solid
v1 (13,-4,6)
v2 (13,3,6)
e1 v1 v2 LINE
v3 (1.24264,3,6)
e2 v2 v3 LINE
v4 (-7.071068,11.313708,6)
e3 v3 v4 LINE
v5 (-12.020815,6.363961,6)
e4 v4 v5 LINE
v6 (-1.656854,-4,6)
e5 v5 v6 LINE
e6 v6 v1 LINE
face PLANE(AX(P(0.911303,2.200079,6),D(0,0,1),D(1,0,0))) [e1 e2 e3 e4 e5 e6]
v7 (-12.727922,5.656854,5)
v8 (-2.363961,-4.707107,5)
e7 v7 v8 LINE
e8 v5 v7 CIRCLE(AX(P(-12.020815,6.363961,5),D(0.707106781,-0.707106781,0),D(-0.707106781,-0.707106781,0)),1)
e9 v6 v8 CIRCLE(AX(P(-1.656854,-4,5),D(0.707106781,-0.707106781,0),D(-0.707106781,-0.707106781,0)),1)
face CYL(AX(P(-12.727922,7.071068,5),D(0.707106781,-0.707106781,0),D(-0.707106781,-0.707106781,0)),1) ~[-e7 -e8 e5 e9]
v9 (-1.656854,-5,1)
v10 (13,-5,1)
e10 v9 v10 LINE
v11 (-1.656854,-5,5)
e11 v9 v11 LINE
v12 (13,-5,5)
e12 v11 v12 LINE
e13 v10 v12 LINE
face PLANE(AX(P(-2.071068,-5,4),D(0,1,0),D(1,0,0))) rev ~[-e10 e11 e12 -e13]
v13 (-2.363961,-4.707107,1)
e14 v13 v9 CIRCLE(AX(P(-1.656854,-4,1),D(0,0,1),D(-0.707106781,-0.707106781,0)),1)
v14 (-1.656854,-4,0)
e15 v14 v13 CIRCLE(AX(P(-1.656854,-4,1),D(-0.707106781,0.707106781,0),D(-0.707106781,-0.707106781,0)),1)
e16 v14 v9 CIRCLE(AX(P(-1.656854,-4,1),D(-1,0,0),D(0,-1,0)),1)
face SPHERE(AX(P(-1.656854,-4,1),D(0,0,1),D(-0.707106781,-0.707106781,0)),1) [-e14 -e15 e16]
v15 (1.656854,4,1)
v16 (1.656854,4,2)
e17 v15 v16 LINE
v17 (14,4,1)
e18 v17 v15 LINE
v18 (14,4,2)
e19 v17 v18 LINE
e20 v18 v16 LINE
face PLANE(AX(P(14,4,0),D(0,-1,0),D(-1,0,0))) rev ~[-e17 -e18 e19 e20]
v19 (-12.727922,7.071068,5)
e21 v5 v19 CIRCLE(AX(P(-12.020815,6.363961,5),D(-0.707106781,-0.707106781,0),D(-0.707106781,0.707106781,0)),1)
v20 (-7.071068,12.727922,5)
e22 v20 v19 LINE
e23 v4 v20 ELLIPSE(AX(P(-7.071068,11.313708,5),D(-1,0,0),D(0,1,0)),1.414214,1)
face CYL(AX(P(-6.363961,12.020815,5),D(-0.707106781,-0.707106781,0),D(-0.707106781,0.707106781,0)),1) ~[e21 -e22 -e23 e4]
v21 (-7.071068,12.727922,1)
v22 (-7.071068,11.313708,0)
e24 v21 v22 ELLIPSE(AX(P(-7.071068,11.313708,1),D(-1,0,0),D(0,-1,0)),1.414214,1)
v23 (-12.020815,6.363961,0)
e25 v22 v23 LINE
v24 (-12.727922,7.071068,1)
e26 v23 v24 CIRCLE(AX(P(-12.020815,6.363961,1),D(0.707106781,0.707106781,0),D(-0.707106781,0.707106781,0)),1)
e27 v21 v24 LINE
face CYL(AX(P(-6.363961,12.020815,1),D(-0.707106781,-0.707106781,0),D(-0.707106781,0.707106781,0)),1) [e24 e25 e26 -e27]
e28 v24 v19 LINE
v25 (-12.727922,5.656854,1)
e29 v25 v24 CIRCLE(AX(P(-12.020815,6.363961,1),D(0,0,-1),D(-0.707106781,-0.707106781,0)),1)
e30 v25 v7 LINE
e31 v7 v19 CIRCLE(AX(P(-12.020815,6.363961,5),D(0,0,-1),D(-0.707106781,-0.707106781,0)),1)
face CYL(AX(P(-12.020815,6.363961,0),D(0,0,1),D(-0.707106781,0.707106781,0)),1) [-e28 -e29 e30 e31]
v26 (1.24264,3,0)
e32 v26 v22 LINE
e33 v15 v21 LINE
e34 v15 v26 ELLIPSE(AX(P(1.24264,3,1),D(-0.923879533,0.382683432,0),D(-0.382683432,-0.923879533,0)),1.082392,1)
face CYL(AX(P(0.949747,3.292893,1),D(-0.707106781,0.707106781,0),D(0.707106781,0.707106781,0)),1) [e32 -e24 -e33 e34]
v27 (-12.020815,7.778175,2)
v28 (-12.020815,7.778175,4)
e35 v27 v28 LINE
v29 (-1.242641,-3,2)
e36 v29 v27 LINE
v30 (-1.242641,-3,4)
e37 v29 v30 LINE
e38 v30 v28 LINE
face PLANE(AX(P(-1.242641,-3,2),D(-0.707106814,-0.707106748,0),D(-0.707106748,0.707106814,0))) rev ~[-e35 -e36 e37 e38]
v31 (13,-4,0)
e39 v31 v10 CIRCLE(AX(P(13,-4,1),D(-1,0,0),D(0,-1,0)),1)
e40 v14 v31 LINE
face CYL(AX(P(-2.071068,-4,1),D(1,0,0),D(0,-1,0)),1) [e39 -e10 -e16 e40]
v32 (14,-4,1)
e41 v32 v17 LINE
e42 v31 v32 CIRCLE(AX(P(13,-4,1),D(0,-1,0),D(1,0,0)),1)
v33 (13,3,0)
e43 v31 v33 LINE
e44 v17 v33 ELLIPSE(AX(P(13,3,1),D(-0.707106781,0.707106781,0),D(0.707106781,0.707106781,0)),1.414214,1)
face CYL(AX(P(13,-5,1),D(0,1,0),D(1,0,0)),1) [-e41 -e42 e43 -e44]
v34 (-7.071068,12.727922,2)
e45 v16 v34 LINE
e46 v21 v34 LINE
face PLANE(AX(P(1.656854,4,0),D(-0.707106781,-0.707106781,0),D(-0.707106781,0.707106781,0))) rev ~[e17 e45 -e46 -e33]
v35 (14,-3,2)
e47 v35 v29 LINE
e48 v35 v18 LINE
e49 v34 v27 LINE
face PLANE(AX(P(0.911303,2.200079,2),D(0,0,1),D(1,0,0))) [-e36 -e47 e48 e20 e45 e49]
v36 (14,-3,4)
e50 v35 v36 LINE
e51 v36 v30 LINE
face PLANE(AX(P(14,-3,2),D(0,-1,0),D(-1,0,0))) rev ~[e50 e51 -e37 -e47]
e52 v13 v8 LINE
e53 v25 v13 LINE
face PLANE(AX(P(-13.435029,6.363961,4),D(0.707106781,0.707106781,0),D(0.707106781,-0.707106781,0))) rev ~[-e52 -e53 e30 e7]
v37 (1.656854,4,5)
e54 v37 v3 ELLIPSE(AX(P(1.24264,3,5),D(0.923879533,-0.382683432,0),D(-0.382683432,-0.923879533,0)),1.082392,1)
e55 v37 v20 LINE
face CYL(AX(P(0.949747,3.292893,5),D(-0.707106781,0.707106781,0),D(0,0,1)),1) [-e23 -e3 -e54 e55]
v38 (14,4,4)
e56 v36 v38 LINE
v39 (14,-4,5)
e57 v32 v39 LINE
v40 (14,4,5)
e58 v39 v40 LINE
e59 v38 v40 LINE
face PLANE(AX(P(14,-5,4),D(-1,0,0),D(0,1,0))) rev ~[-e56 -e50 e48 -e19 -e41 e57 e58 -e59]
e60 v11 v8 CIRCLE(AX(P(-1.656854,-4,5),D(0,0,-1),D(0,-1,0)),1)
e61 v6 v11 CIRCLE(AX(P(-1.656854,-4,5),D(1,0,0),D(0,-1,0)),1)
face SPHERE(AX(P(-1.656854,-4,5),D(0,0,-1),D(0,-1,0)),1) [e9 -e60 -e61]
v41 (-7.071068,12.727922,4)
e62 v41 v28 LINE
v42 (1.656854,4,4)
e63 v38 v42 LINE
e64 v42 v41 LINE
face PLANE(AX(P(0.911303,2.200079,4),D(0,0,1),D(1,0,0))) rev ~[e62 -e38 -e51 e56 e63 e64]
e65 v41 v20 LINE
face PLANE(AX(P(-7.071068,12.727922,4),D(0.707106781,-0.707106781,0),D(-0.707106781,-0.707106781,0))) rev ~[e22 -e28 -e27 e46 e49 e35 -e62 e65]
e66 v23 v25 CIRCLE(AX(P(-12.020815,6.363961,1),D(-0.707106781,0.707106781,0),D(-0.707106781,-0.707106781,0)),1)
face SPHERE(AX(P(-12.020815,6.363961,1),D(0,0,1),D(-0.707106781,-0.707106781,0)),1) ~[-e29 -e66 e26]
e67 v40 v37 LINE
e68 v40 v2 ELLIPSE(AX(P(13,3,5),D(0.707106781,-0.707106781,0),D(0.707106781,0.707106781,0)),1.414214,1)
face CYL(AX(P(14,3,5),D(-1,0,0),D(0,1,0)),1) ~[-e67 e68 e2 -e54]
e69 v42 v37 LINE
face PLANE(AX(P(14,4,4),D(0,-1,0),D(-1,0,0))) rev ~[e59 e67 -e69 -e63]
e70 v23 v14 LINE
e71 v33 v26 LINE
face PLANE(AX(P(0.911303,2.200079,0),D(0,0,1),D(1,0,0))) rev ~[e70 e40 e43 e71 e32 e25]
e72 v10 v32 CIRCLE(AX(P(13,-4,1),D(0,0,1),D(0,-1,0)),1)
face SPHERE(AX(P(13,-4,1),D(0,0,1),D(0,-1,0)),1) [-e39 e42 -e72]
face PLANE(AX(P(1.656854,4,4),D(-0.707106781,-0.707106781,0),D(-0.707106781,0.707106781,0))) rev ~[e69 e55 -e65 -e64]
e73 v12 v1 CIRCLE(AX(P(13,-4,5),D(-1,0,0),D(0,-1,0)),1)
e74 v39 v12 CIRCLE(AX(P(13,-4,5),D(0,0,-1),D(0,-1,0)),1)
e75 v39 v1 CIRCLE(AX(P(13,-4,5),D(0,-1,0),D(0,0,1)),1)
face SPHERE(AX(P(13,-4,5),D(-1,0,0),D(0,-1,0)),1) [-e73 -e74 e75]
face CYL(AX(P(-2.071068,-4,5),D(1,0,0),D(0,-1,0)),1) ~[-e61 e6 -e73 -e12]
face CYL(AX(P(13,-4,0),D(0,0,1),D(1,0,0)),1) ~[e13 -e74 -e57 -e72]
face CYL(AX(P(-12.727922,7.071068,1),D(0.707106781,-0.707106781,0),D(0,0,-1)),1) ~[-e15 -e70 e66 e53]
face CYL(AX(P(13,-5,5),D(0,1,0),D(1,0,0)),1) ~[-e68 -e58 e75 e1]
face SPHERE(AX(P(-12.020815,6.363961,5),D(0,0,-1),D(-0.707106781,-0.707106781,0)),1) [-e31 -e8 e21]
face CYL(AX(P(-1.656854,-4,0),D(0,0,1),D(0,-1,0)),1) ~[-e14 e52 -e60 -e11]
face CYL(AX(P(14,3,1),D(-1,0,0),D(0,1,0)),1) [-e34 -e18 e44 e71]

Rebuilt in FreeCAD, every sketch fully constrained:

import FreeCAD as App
import Part
import Sketcher
Q = App.Units.Quantity


def edges_at(feature, points):
    """Names of the edges that pass closest to the given points."""
    edges = feature.Shape.Edges
    near = lambda p: min(range(len(edges)), key=lambda i: edges[i].distToShape(Part.Vertex(*p))[0])
    return sorted({f"Edge{near(p) + 1}" for p in points})

doc = App.newDocument("Part")
body = doc.addObject("PartDesign::Body", "Body")

# Sketch on XY plane
sketch1 = body.newObject("Sketcher::SketchObject", "Sketch")
sketch1.AttachmentSupport = (doc.getObject("XY_Plane"), [""])
sketch1.MapMode = "FlatFace"
sketch1.addGeometry(Part.LineSegment(App.Vector(-13, 6, 0), App.Vector(-2, -5, 0)), False)
sketch1.addGeometry(Part.LineSegment(App.Vector(-2, -5, 0), App.Vector(14, -5, 0)), False)
sketch1.addGeometry(Part.LineSegment(App.Vector(14, -5, 0), App.Vector(14, 4, 0)), False)
sketch1.addGeometry(Part.LineSegment(App.Vector(14, 4, 0), App.Vector(2, 4, 0)), False)
sketch1.addGeometry(Part.LineSegment(App.Vector(2, 4, 0), App.Vector(-7, 13, 0)), False)
sketch1.addGeometry(Part.LineSegment(App.Vector(-7, 13, 0), App.Vector(-13, 6, 0)), False)
sketch1.addConstraint(Sketcher.Constraint("Coincident", 0, 2, 1, 1))
sketch1.addConstraint(Sketcher.Constraint("Coincident", 1, 2, 2, 1))
sketch1.addConstraint(Sketcher.Constraint("Coincident", 2, 2, 3, 1))
sketch1.addConstraint(Sketcher.Constraint("Coincident", 3, 2, 4, 1))
sketch1.addConstraint(Sketcher.Constraint("Coincident", 4, 2, 5, 1))
sketch1.addConstraint(Sketcher.Constraint("Coincident", 5, 2, 0, 1))
sketch1.addConstraint(Sketcher.Constraint("Horizontal", 1))
sketch1.addConstraint(Sketcher.Constraint("Vertical", 2))
sketch1.addConstraint(Sketcher.Constraint("Horizontal", 3))
sketch1.addConstraint(Sketcher.Constraint("Parallel", 0, 4))
sketch1.addConstraint(Sketcher.Constraint("Perpendicular", 4, 5))
sketch1.addConstraint(Sketcher.Constraint("DistanceY", 2, 1, 2, 2, Q("9 mm")))
sketch1.addConstraint(Sketcher.Constraint("Angle", 0, Q("-45 deg")))
sketch1.addConstraint(Sketcher.Constraint("Distance", 5, Q("9 mm")))
sketch1.addConstraint(Sketcher.Constraint("DistanceY", 0, 2, -1, 1, Q("5 mm")))
sketch1.addConstraint(Sketcher.Constraint("DistanceX", -1, 1, 1, 2, Q("14 mm")))
sketch1.addConstraint(Sketcher.Constraint("DistanceX", 4, 2, 0, 2, Q("5 mm")))
sketch1.addConstraint(Sketcher.Constraint("DistanceX", 1, 1, 1, 2, Q("16.071068 mm")))
pad1 = body.newObject("PartDesign::Pad", "Pad")
pad1.Profile = sketch1
pad1.Length = 2

# Sketch on XY plane
sketch2 = body.newObject("Sketcher::SketchObject", "Sketch001")
sketch2.AttachmentSupport = (doc.getObject("XY_Plane"), [""])
sketch2.MapMode = "FlatFace"
sketch2.AttachmentOffset = App.Placement(App.Vector(0, 0, 2), App.Rotation())
sketch2.addGeometry(Part.LineSegment(App.Vector(-12, 7.8, 0), App.Vector(-13.4, 6.4, 0)), False)
sketch2.addGeometry(Part.LineSegment(App.Vector(-13.4, 6.4, 0), App.Vector(-2.1, -5, 0)), False)
sketch2.addGeometry(Part.LineSegment(App.Vector(-2.1, -5, 0), App.Vector(14, -5, 0)), False)
sketch2.addGeometry(Part.LineSegment(App.Vector(14, -5, 0), App.Vector(14, -3, 0)), False)
sketch2.addGeometry(Part.LineSegment(App.Vector(14, -3, 0), App.Vector(-1.2, -3, 0)), False)
sketch2.addGeometry(Part.LineSegment(App.Vector(-1.2, -3, 0), App.Vector(-12, 7.8, 0)), False)
sketch2.addConstraint(Sketcher.Constraint("Coincident", 0, 2, 1, 1))
sketch2.addConstraint(Sketcher.Constraint("Coincident", 1, 2, 2, 1))
sketch2.addConstraint(Sketcher.Constraint("Coincident", 2, 2, 3, 1))
sketch2.addConstraint(Sketcher.Constraint("Coincident", 3, 2, 4, 1))
sketch2.addConstraint(Sketcher.Constraint("Coincident", 4, 2, 5, 1))
sketch2.addConstraint(Sketcher.Constraint("Coincident", 5, 2, 0, 1))
sketch2.addConstraint(Sketcher.Constraint("Horizontal", 2))
sketch2.addConstraint(Sketcher.Constraint("Vertical", 3))
sketch2.addConstraint(Sketcher.Constraint("Horizontal", 4))
sketch2.addConstraint(Sketcher.Constraint("Perpendicular", 0, 1))
sketch2.addConstraint(Sketcher.Constraint("Parallel", 1, 5))
sketch2.addConstraint(Sketcher.Constraint("DistanceY", 3, 1, 3, 2, Q("2 mm")))
sketch2.addConstraint(Sketcher.Constraint("Angle", 0, Q("-135 deg")))
sketch2.addConstraint(Sketcher.Constraint("Distance", 0, Q("2.000001 mm")))
sketch2.addConstraint(Sketcher.Constraint("DistanceY", 1, 2, -1, 1, Q("5 mm")))
sketch2.addConstraint(Sketcher.Constraint("DistanceX", -1, 1, 2, 2, Q("14 mm")))
sketch2.addConstraint(Sketcher.Constraint("DistanceX", 2, 1, 2, 2, Q("16.071068 mm")))
sketch2.addConstraint(Sketcher.Constraint("Distance", 5, Q("15.242641 mm")))
pad2 = body.newObject("PartDesign::Pad", "Pad001")
pad2.Profile = sketch2
pad2.Length = 2

# Sketch on XY plane
sketch3 = body.newObject("Sketcher::SketchObject", "Sketch002")
sketch3.AttachmentSupport = (doc.getObject("XY_Plane"), [""])
sketch3.MapMode = "FlatFace"
sketch3.AttachmentOffset = App.Placement(App.Vector(0, 0, 4), App.Rotation())
sketch3.addGeometry(Part.LineSegment(App.Vector(-7, 13, 0), App.Vector(-13, 6, 0)), False)
sketch3.addGeometry(Part.LineSegment(App.Vector(-13, 6, 0), App.Vector(-2, -5, 0)), False)
sketch3.addGeometry(Part.LineSegment(App.Vector(-2, -5, 0), App.Vector(14, -5, 0)), False)
sketch3.addGeometry(Part.LineSegment(App.Vector(14, -5, 0), App.Vector(14, 4, 0)), False)
sketch3.addGeometry(Part.LineSegment(App.Vector(14, 4, 0), App.Vector(2, 4, 0)), False)
sketch3.addGeometry(Part.LineSegment(App.Vector(2, 4, 0), App.Vector(-7, 13, 0)), False)
sketch3.addConstraint(Sketcher.Constraint("Coincident", 0, 2, 1, 1))
sketch3.addConstraint(Sketcher.Constraint("Coincident", 1, 2, 2, 1))
sketch3.addConstraint(Sketcher.Constraint("Coincident", 2, 2, 3, 1))
sketch3.addConstraint(Sketcher.Constraint("Coincident", 3, 2, 4, 1))
sketch3.addConstraint(Sketcher.Constraint("Coincident", 4, 2, 5, 1))
sketch3.addConstraint(Sketcher.Constraint("Coincident", 5, 2, 0, 1))
sketch3.addConstraint(Sketcher.Constraint("Horizontal", 2))
sketch3.addConstraint(Sketcher.Constraint("Vertical", 3))
sketch3.addConstraint(Sketcher.Constraint("Horizontal", 4))
sketch3.addConstraint(Sketcher.Constraint("Perpendicular", 0, 1))
sketch3.addConstraint(Sketcher.Constraint("Parallel", 1, 5))
sketch3.addConstraint(Sketcher.Constraint("DistanceY", 3, 1, 3, 2, Q("9 mm")))
sketch3.addConstraint(Sketcher.Constraint("Angle", 0, Q("-135 deg")))
sketch3.addConstraint(Sketcher.Constraint("Distance", 0, Q("9 mm")))
sketch3.addConstraint(Sketcher.Constraint("DistanceY", 1, 2, -1, 1, Q("5 mm")))
sketch3.addConstraint(Sketcher.Constraint("DistanceX", -1, 1, 2, 2, Q("14 mm")))
sketch3.addConstraint(Sketcher.Constraint("DistanceX", 5, 2, 1, 2, Q("5 mm")))
sketch3.addConstraint(Sketcher.Constraint("DistanceX", 2, 1, 2, 2, Q("16.071068 mm")))
pad3 = body.newObject("PartDesign::Pad", "Pad002")
pad3.Profile = sketch3
pad3.Length = 2
doc.recompute()

fillet = body.newObject("PartDesign::Fillet", "Fillet")
fillet.Base = (pad3, edges_at(pad3, [
    (-13.435, 6.364, 3),
    (-7.753, 0.682, 6),
    (-2.071, -5, 3),
    (-7.753, 0.682, 0),
    (5.964, -5, 6),
    (14, -5, 3),
    (5.964, -5, 0),
    (-10.253, 9.546, 0),
    (14, -0.5, 0),
    (7.828, 4, 0),
    (-2.707, 8.364, 0),
    (14, -0.5, 6),
    (7.828, 4, 6),
    (-2.707, 8.364, 6),
    (-10.253, 9.546, 6),
]))
fillet.Radius = 1

doc.recompute()
